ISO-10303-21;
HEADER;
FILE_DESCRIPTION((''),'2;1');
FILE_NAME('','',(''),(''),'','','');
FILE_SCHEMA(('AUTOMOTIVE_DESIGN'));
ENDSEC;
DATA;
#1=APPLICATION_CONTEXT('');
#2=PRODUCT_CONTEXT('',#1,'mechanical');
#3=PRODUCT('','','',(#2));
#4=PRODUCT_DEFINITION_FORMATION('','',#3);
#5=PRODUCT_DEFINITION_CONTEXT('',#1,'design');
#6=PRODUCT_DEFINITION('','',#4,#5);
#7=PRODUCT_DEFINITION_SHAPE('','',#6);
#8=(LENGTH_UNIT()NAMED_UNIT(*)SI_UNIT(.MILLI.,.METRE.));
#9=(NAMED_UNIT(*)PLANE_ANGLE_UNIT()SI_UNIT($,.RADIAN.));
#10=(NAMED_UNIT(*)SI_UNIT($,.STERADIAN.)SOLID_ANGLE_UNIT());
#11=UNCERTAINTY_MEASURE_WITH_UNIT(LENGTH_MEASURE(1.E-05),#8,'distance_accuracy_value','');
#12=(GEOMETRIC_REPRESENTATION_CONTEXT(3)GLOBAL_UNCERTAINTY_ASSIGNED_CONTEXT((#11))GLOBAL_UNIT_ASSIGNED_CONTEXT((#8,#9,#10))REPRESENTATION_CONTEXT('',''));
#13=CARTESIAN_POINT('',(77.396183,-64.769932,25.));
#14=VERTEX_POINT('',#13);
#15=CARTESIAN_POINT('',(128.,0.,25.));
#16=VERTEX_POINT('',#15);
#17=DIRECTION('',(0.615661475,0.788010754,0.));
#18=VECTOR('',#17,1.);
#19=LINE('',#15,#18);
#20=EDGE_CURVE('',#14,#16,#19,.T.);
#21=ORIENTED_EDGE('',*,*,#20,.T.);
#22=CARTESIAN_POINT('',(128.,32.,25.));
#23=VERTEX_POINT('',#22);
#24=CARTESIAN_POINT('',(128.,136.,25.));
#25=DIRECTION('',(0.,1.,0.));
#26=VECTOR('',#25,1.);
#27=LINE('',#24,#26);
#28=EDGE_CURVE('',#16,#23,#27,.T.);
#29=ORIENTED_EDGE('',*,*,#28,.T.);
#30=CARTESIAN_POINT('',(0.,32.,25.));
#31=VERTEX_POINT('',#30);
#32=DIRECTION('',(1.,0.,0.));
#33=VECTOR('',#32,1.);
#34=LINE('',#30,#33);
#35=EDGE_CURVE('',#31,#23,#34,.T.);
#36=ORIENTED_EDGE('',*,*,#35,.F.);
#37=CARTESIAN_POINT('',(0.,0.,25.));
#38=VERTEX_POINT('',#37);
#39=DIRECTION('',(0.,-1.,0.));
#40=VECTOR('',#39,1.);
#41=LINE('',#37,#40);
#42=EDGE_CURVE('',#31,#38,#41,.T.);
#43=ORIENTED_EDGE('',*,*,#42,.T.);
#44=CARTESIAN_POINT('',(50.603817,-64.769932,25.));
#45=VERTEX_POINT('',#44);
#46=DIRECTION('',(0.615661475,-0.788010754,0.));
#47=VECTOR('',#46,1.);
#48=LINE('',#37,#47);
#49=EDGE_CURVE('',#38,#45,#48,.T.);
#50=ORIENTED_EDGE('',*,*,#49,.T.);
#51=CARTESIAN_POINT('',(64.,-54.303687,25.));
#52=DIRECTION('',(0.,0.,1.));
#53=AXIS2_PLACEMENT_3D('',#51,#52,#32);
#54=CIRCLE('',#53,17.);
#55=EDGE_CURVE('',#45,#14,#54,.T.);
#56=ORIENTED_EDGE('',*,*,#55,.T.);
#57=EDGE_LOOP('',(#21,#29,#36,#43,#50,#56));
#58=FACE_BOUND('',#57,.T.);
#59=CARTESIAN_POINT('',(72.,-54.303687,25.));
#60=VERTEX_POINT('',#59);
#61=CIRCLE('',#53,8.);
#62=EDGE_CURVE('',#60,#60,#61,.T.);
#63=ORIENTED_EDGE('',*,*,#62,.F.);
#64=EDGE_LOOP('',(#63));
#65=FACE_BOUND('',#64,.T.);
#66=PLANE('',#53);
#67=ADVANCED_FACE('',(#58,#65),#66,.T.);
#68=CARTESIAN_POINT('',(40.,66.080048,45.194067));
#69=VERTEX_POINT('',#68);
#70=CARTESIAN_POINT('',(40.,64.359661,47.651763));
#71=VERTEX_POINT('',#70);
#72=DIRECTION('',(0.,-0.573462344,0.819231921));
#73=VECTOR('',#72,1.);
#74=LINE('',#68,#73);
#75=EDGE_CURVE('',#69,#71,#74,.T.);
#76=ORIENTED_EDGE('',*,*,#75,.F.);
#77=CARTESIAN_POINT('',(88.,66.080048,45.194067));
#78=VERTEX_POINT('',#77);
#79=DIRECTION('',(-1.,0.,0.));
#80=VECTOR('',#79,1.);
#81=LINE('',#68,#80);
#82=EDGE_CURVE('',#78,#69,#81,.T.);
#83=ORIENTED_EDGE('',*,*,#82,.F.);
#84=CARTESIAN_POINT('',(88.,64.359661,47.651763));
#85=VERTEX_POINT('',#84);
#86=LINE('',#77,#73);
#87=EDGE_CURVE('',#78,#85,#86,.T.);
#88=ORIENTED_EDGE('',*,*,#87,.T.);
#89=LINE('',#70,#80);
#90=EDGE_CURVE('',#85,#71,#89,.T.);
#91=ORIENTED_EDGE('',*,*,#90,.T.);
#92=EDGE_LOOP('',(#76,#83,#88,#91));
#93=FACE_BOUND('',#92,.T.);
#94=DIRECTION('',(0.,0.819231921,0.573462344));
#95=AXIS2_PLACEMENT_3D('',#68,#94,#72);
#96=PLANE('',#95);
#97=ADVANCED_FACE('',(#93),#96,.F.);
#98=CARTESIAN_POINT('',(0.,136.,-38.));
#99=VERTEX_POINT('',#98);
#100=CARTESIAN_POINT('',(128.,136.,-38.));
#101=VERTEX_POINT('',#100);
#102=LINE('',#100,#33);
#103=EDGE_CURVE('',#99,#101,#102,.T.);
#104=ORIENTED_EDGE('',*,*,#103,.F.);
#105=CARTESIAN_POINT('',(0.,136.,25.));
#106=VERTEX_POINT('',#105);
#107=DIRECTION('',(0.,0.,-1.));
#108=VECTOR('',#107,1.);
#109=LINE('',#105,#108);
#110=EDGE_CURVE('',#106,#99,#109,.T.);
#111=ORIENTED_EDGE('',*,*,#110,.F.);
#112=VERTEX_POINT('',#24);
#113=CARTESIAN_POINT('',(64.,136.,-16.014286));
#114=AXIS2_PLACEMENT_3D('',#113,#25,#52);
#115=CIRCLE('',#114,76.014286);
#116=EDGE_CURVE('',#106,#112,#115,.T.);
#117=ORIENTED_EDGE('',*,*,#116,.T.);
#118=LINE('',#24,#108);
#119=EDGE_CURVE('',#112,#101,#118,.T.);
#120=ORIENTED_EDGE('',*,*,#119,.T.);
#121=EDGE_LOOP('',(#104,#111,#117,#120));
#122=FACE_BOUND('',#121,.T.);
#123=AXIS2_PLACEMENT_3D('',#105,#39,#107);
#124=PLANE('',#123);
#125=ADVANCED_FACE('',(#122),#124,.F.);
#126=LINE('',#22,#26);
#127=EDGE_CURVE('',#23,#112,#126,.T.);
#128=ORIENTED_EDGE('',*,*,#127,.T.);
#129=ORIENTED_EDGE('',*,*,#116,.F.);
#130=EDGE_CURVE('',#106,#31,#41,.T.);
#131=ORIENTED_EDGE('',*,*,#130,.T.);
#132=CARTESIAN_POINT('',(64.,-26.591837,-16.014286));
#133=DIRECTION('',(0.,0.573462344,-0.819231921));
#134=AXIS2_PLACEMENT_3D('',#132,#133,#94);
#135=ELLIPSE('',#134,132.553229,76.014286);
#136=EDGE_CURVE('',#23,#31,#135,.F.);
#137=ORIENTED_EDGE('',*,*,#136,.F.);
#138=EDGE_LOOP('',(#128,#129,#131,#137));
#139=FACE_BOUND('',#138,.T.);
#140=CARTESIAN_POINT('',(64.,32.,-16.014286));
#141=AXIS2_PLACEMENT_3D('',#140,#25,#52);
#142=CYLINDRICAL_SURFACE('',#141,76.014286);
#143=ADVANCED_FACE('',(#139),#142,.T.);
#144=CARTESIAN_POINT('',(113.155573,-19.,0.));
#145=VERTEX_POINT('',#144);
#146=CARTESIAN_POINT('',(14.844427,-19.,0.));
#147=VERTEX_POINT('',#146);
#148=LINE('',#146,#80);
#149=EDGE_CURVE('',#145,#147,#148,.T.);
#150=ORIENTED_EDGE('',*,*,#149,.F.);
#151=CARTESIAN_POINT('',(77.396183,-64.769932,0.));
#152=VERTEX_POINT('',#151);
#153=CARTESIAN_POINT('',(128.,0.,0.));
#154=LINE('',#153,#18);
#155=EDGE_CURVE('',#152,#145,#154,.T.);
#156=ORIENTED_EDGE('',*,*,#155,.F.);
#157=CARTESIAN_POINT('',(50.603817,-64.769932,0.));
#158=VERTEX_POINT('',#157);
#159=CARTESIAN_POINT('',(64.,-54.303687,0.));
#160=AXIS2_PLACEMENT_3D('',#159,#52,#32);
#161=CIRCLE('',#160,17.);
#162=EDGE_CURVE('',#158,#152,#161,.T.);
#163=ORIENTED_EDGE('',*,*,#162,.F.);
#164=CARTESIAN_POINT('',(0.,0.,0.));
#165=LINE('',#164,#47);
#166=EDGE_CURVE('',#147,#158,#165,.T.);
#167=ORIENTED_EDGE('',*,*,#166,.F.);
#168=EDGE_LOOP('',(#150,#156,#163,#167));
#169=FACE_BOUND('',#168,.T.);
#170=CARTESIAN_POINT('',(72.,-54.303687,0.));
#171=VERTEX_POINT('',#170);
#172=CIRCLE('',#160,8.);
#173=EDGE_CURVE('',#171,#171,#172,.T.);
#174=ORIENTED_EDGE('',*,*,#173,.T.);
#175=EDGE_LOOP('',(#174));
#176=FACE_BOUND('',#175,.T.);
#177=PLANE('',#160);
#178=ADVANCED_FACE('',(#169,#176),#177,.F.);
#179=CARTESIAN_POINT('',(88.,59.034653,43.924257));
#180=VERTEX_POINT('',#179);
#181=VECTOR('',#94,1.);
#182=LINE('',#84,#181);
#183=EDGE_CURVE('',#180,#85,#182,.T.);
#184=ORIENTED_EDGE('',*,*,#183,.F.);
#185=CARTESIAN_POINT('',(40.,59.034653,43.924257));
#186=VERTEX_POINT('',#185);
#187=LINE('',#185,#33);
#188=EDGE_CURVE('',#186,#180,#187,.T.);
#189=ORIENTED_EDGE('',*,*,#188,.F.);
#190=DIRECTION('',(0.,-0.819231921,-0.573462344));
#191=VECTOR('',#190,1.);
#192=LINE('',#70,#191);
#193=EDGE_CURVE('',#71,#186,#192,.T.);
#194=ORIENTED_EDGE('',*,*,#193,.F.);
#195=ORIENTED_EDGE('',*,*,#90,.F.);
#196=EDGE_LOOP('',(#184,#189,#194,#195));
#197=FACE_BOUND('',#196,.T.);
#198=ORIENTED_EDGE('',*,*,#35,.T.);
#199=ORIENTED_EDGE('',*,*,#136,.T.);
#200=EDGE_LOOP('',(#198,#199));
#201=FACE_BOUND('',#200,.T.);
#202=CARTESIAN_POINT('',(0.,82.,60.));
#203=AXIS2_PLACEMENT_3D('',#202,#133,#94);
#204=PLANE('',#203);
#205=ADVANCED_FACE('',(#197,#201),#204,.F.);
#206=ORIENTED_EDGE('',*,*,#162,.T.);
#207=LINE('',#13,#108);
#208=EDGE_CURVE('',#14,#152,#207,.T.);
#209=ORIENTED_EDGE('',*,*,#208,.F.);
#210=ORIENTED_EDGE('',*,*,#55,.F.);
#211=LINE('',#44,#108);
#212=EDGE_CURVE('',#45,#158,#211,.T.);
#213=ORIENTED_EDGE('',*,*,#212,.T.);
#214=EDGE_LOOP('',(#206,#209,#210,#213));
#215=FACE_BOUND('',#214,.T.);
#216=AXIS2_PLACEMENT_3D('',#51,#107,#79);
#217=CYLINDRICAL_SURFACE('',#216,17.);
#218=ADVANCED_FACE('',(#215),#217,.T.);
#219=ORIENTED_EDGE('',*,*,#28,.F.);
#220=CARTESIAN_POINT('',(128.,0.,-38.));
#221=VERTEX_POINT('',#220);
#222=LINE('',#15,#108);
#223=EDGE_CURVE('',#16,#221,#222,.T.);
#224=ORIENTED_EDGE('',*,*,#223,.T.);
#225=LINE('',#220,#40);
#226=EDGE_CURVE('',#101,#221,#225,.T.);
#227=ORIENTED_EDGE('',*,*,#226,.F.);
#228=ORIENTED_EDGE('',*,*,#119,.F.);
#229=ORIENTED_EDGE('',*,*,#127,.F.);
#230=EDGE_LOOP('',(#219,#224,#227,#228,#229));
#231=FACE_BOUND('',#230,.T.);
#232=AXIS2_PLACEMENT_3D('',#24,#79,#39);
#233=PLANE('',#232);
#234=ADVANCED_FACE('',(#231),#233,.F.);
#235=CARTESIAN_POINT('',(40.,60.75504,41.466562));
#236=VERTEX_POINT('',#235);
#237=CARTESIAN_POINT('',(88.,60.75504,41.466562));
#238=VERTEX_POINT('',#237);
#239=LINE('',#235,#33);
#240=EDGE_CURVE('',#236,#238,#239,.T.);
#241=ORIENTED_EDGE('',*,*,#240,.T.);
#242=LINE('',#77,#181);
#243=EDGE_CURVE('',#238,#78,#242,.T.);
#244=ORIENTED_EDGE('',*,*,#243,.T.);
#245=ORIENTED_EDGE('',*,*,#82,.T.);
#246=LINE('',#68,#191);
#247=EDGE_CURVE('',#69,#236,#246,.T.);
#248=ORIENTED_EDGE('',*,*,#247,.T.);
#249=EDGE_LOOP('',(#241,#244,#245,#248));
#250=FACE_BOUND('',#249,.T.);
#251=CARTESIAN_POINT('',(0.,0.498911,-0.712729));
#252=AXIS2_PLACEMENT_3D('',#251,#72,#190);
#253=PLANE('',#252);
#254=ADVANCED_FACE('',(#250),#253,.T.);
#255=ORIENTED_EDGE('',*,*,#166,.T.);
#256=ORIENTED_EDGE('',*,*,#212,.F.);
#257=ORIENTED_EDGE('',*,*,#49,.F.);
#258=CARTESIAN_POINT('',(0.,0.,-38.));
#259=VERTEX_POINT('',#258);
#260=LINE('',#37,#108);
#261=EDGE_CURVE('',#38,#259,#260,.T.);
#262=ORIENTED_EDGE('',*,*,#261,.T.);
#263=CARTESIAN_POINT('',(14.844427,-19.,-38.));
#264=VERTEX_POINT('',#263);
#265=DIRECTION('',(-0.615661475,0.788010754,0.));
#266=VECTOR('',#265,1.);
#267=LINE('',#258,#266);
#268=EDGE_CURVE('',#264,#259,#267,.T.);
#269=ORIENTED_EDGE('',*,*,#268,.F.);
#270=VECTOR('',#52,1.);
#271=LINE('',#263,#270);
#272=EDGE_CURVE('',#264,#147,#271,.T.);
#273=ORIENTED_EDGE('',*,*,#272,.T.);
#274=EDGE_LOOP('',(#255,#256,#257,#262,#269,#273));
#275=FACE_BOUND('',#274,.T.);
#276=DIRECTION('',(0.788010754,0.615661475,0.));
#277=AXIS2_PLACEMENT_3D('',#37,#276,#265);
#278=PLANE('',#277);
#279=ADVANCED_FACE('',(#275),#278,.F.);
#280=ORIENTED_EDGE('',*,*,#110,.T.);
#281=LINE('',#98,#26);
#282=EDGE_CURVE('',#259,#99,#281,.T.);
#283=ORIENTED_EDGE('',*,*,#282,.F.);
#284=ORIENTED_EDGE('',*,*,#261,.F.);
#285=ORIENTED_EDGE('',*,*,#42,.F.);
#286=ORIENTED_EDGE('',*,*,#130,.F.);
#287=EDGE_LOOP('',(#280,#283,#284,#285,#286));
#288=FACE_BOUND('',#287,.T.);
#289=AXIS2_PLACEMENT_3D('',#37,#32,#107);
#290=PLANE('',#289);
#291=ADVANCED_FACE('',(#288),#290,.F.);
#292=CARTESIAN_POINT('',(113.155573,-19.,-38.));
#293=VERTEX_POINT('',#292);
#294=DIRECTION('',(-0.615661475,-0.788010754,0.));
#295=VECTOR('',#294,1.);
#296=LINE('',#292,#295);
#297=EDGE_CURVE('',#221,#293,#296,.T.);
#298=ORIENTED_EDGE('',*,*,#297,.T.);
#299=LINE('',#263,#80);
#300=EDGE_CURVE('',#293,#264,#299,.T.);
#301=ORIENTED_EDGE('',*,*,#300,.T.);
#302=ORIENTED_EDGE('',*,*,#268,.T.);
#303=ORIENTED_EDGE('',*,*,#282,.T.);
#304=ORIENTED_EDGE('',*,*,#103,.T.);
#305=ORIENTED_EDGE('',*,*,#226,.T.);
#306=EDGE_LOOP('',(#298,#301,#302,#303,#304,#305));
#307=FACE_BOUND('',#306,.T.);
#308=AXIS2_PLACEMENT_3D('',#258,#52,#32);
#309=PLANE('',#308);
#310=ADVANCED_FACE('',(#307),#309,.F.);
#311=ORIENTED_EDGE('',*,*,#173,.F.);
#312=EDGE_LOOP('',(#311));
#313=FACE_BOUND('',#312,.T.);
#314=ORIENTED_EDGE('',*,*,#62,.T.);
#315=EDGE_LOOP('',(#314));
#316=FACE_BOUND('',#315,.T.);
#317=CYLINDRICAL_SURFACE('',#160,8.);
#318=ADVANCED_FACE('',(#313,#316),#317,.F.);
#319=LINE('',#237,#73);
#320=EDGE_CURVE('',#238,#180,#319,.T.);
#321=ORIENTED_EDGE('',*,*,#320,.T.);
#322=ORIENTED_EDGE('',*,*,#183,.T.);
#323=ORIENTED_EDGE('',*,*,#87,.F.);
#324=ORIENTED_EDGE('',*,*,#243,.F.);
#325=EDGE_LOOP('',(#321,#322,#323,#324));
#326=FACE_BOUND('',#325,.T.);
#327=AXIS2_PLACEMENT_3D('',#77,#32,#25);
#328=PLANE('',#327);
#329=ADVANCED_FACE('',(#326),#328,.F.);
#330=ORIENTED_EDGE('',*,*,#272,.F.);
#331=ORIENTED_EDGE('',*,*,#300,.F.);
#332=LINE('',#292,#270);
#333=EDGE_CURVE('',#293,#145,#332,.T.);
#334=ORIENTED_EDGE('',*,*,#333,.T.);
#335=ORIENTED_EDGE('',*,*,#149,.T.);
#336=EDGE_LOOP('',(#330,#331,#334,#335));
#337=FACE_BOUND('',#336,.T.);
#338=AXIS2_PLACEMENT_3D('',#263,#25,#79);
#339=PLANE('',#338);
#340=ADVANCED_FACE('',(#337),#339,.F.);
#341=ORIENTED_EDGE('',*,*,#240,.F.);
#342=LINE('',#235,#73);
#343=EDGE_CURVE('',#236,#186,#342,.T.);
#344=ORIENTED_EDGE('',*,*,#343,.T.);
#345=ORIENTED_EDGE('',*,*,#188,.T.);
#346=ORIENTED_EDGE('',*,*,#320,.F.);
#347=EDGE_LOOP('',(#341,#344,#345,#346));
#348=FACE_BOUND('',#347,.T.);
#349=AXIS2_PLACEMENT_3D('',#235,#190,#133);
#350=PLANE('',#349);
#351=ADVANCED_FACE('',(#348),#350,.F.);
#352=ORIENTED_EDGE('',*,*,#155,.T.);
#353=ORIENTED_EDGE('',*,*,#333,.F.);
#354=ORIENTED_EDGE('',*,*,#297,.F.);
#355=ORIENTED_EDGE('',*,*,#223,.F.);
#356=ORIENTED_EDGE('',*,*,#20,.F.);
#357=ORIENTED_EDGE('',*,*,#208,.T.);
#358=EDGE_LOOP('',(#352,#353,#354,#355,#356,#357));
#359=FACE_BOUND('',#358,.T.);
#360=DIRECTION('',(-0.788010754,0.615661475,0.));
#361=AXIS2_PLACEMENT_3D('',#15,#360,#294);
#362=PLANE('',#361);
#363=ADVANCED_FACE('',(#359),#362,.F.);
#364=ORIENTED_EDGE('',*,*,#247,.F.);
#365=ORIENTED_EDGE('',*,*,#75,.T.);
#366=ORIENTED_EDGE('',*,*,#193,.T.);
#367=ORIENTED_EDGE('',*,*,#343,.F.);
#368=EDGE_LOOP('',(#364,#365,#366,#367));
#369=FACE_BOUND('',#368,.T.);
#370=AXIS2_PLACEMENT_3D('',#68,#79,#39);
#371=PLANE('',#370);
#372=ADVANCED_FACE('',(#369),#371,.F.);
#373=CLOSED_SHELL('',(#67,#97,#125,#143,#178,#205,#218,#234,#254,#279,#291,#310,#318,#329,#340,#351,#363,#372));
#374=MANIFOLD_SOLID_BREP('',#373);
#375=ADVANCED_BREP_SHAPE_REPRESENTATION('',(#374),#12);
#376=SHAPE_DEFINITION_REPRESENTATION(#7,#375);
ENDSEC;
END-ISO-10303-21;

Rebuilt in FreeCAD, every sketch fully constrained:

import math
import FreeCAD as App
import Part
import Sketcher
from FreeCAD import Vector
Q = App.Units.Quantity

doc = App.newDocument("Part")
body = doc.addObject("PartDesign::Body", "Body")

sketch1 = body.newObject("Sketcher::SketchObject", "Sketch")
sketch1.AttachmentSupport = (doc.getObject("XY_Plane"), [""])
sketch1.MapMode = "FlatFace"
sketch1.addGeometry(Part.LineSegment(Vector(0, 136, 0), Vector(0, 0, 0)), False)
sketch1.addGeometry(Part.LineSegment(Vector(0, 0, 0), Vector(50.603817, -64.769932, 0)), False)
sketch1.addGeometry(Part.ArcOfCircle(Part.Circle(Vector(64, -54.303687, 0), Vector(0, 0, 1), 17), math.radians(-142), math.radians(-38)), False)
sketch1.addGeometry(Part.LineSegment(Vector(77.396183, -64.769932, 0), Vector(128, 0, 0)), False)
sketch1.addGeometry(Part.LineSegment(Vector(128, 0, 0), Vector(128, 136, 0)), False)
sketch1.addGeometry(Part.LineSegment(Vector(128, 136, 0), Vector(0, 136, 0)), False)
sketch1.addConstraint(Sketcher.Constraint("Coincident", 0, 2, 1, 1))
sketch1.addConstraint(Sketcher.Constraint("Tangent", 1, 2, 2, 1))
sketch1.addConstraint(Sketcher.Constraint("Tangent", 2, 2, 3, 1))
sketch1.addConstraint(Sketcher.Constraint("Coincident", 3, 2, 4, 1))
sketch1.addConstraint(Sketcher.Constraint("Coincident", 4, 2, 5, 1))
sketch1.addConstraint(Sketcher.Constraint("Coincident", 5, 2, 0, 1))
sketch1.addConstraint(Sketcher.Constraint("Vertical", 0))
sketch1.addConstraint(Sketcher.Constraint("Vertical", 4))
sketch1.addConstraint(Sketcher.Constraint("Horizontal", 5))
sketch1.addConstraint(Sketcher.Constraint("Coincident", 0, 2, -1, 1))
sketch1.addConstraint(Sketcher.Constraint("PointOnObject", 3, 2, -1))
sketch1.addConstraint(Sketcher.Constraint("Horizontal", 1, 2, 2, 2))
sketch1.addConstraint(Sketcher.Constraint("Radius", 2, 17.0))
sketch1.addConstraint(Sketcher.Constraint("DistanceX", 5, 2, 5, 1, 128.0))
sketch1.addConstraint(Sketcher.Constraint("DistanceY", 0, 2, 0, 1, 136.0))
sketch1.addConstraint(Sketcher.Constraint("Angle", 1, Q("-52 deg")))
pad1 = body.newObject("PartDesign::Pad", "Pad")
pad1.Profile = sketch1
pad1.Length = 25

sketch2 = body.newObject("Sketcher::SketchObject", "Sketch001")
sketch2.AttachmentSupport = (doc.getObject("XZ_Plane"), [""])
sketch2.MapMode = "FlatFace"
sketch2.AttachmentOffset = App.Placement(Vector(0, 0, -136), App.Rotation())
sketch2.addGeometry(Part.LineSegment(Vector(128, 25, 0), Vector(0, 25, 0)), False)
sketch2.addGeometry(Part.ArcOfCircle(Part.Circle(Vector(64, -16.014286, 0), Vector(0, 0, 1), 76.014286), math.radians(32.653707), math.radians(147.346293)), False)
sketch2.addConstraint(Sketcher.Constraint("Coincident", 0, 1, 1, 1))
sketch2.addConstraint(Sketcher.Constraint("Coincident", 1, 2, 0, 2))
sketch2.addConstraint(Sketcher.Constraint("Horizontal", 0))
sketch2.addConstraint(Sketcher.Constraint("PointOnObject", 1, 2, -2))
sketch2.addConstraint(Sketcher.Constraint("DistanceX", 0, 2, 0, 1, 128.0))
sketch2.addConstraint(Sketcher.Constraint("DistanceY", -1, 1, 0, 1, 25.0))
sketch2.addConstraint(Sketcher.Constraint("Radius", 1, 76.014286))
pad2 = body.newObject("PartDesign::Pad", "Pad001")
pad2.Profile = sketch2
pad2.Length = 104

sketch3 = body.newObject("Sketcher::SketchObject", "Sketch002")
sketch3.AttachmentSupport = (doc.getObject("YZ_Plane"), [""])
sketch3.MapMode = "FlatFace"
sketch3.AttachmentOffset = App.Placement(Vector(0, 0, 128), App.Rotation())
sketch3.addGeometry(Part.LineSegment(Vector(32, 60, 0), Vector(32, 25, 0)), False)
sketch3.addGeometry(Part.LineSegment(Vector(32, 25, 0), Vector(82, 60, 0)), False)
sketch3.addGeometry(Part.LineSegment(Vector(82, 60, 0), Vector(32, 60, 0)), False)
sketch3.addConstraint(Sketcher.Constraint("Coincident", 0, 2, 1, 1))
sketch3.addConstraint(Sketcher.Constraint("Coincident", 1, 2, 2, 1))
sketch3.addConstraint(Sketcher.Constraint("Coincident", 2, 2, 0, 1))
sketch3.addConstraint(Sketcher.Constraint("Vertical", 0))
sketch3.addConstraint(Sketcher.Constraint("Horizontal", 2))
sketch3.addConstraint(Sketcher.Constraint("DistanceX", 2, 2, 2, 1, 50.0))
sketch3.addConstraint(Sketcher.Constraint("DistanceY", 0, 2, 0, 1, 35.0))
sketch3.addConstraint(Sketcher.Constraint("DistanceX", -1, 1, 0, 2, 32.0))
sketch3.addConstraint(Sketcher.Constraint("DistanceY", -1, 1, 0, 2, 25.0))
pocket1 = body.newObject("PartDesign::Pocket", "Pocket")
pocket1.Profile = sketch3
pocket1.Type = "ThroughAll"

sketch4 = body.newObject("Sketcher::SketchObject", "Sketch003")
sketch4.Placement = App.Placement(Vector(0, -1.221477, 1.744966), App.Rotation(Vector(1, 0, 0), Vector(0, 0.819231921, 0.573462344), Vector(0, -0.573462344, 0.819231921), "ZXY"))
sketch4.addGeometry(Part.LineSegment(Vector(40, 80.05198, 0), Vector(40, 73.55198, 0)), False)
sketch4.addGeometry(Part.LineSegment(Vector(40, 73.55198, 0), Vector(88, 73.55198, 0)), False)
sketch4.addGeometry(Part.LineSegment(Vector(88, 73.55198, 0), Vector(88, 80.05198, 0)), False)
sketch4.addGeometry(Part.LineSegment(Vector(88, 80.05198, 0), Vector(40, 80.05198, 0)), False)
sketch4.addConstraint(Sketcher.Constraint("Coincident", 0, 2, 1, 1))
sketch4.addConstraint(Sketcher.Constraint("Coincident", 1, 2, 2, 1))
sketch4.addConstraint(Sketcher.Constraint("Coincident", 2, 2, 3, 1))
sketch4.addConstraint(Sketcher.Constraint("Coincident", 3, 2, 0, 1))
sketch4.addConstraint(Sketcher.Constraint("Vertical", 0))
sketch4.addConstraint(Sketcher.Constraint("Horizontal", 1))
sketch4.addConstraint(Sketcher.Constraint("Vertical", 2))
sketch4.addConstraint(Sketcher.Constraint("Horizontal", 3))
sketch4.addConstraint(Sketcher.Constraint("DistanceX", 1, 1, 1, 2, 48.0))
sketch4.addConstraint(Sketcher.Constraint("DistanceY", 0, 2, 0, 1, 6.5))
sketch4.addConstraint(Sketcher.Constraint("DistanceX", -1, 1, 0, 2, 40.0))
sketch4.addConstraint(Sketcher.Constraint("DistanceY", -1, 1, 0, 2, 73.55198))
pocket2 = body.newObject("PartDesign::Pocket", "Pocket001")
pocket2.Profile = sketch4
pocket2.Length = 3

sketch5 = body.newObject("Sketcher::SketchObject", "Sketch004")
sketch5.AttachmentSupport = (doc.getObject("XY_Plane"), [""])
sketch5.MapMode = "FlatFace"
sketch5.AttachmentOffset = App.Placement(Vector(0, 0, 25), App.Rotation())
sketch5.addGeometry(Part.Circle(Vector(64, -54.303687, 0), Vector(0, 0, 1), 8), False)
sketch5.addConstraint(Sketcher.Constraint("Diameter", 0, 16.0))
sketch5.addConstraint(Sketcher.Constraint("DistanceX", -1, 1, 0, 3, 64.0))
sketch5.addConstraint(Sketcher.Constraint("DistanceY", 0, 3, -1, 1, 54.303687))
pocket3 = body.newObject("PartDesign::Pocket", "Pocket002")
pocket3.Profile = sketch5
pocket3.Type = "ThroughAll"

sketch6 = body.newObject("Sketcher::SketchObject", "Sketch005")
sketch6.AttachmentSupport = (doc.getObject("XY_Plane"), [""])
sketch6.MapMode = "FlatFace"
sketch6.addGeometry(Part.LineSegment(Vector(0, 136, 0), Vector(128, 136, 0)), False)
sketch6.addGeometry(Part.LineSegment(Vector(128, 136, 0), Vector(128, 0, 0)), False)
sketch6.addGeometry(Part.LineSegment(Vector(128, 0, 0), Vector(113.155573, -19, 0)), False)
sketch6.addGeometry(Part.LineSegment(Vector(113.155573, -19, 0), Vector(14.844427, -19, 0)), False)
sketch6.addGeometry(Part.LineSegment(Vector(14.844427, -19, 0), Vector(0, 0, 0)), False)
sketch6.addGeometry(Part.LineSegment(Vector(0, 0, 0), Vector(0, 136, 0)), False)
sketch6.addConstraint(Sketcher.Constraint("Coincident", 0, 2, 1, 1))
sketch6.addConstraint(Sketcher.Constraint("Coincident", 1, 2, 2, 1))
sketch6.addConstraint(Sketcher.Constraint("Coincident", 2, 2, 3, 1))
sketch6.addConstraint(Sketcher.Constraint("Coincident", 3, 2, 4, 1))
sketch6.addConstraint(Sketcher.Constraint("Coincident", 4, 2, 5, 1))
sketch6.addConstraint(Sketcher.Constraint("Coincident", 5, 2, 0, 1))
sketch6.addConstraint(Sketcher.Constraint("Horizontal", 0))
sketch6.addConstraint(Sketcher.Constraint("Vertical", 1))
sketch6.addConstraint(Sketcher.Constraint("Horizontal", 3))
sketch6.addConstraint(Sketcher.Constraint("Vertical", 5))
sketch6.addConstraint(Sketcher.Constraint("Coincident", 4, 2, -1, 1))
sketch6.addConstraint(Sketcher.Constraint("PointOnObject", 1, 2, -1))
sketch6.addConstraint(Sketcher.Constraint("Equal", 2, 4))
sketch6.addConstraint(Sketcher.Constraint("DistanceX", 0, 1, 0, 2, 128.0))
sketch6.addConstraint(Sketcher.Constraint("DistanceY", 1, 2, 1, 1, 136.0))
sketch6.addConstraint(Sketcher.Constraint("Angle", 2, Q("-128 deg")))
sketch6.addConstraint(Sketcher.Constraint("DistanceY", 2, 2, -1, 1, 19.0))
pad3 = body.newObject("PartDesign::Pad", "Pad002")
pad3.Profile = sketch6
pad3.Length = 38
pad3.Reversed = True

doc.recompute()
